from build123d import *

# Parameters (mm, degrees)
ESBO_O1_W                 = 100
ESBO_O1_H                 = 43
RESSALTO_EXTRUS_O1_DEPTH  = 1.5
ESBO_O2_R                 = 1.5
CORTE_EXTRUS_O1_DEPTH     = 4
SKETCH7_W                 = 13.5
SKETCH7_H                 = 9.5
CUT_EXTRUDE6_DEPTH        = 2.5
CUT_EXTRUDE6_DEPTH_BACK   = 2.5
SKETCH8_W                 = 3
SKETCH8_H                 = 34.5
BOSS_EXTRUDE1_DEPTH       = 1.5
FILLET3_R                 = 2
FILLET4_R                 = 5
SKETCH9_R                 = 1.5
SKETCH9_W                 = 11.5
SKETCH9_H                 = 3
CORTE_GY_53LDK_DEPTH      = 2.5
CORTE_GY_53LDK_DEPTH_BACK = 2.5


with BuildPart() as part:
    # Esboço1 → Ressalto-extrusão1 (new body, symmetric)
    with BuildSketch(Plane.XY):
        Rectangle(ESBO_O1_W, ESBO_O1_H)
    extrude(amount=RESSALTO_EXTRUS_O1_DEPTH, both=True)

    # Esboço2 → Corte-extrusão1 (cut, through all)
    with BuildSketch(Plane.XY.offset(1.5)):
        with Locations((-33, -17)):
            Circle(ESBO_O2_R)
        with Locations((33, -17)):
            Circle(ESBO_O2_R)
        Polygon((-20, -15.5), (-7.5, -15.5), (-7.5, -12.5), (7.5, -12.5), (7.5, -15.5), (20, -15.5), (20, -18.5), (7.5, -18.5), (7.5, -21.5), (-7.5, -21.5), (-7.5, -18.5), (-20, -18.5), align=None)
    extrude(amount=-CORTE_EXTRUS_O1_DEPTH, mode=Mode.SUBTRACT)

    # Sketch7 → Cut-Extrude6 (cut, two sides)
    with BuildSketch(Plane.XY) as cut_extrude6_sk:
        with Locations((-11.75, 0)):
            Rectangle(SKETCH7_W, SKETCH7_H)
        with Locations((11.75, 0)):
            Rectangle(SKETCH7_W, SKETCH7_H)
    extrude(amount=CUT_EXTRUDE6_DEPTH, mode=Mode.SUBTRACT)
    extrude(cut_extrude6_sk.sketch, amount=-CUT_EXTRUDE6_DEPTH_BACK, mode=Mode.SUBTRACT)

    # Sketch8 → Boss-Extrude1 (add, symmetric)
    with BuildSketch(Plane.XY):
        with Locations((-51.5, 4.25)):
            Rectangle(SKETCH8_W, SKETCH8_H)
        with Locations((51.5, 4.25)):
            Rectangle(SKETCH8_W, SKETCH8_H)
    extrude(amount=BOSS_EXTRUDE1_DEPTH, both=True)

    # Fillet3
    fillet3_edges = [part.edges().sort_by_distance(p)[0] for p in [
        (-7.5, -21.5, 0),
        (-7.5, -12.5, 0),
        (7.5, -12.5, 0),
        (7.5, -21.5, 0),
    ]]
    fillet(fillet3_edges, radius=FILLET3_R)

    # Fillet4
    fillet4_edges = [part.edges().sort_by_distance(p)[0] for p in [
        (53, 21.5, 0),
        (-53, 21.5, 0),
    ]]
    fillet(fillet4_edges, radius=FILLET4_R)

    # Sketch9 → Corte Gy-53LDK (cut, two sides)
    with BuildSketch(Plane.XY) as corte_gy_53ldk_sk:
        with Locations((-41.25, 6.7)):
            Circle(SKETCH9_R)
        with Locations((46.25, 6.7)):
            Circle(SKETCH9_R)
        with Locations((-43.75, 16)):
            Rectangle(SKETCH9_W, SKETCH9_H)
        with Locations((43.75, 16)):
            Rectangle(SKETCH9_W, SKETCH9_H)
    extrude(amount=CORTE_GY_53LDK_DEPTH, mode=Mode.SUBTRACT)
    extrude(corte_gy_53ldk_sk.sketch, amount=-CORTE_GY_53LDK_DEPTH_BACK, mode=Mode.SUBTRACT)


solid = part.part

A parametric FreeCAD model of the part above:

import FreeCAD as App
import Part
import Sketcher

V = App.Vector
Q = App.Units.Quantity


def edges_at(feature, points):
    """Names of the edges that pass closest to the given points."""
    edges = feature.Shape.Edges
    near = lambda p: min(range(len(edges)), key=lambda i: edges[i].distToShape(Part.Vertex(*p))[0])
    return sorted({f"Edge{near(p) + 1}" for p in points})

doc = App.newDocument("Part")
params = doc.addObject("Spreadsheet::Sheet", "Params")
for row, (alias, value) in enumerate([
    ("sketch1_width", "100 mm"),
    ("sketch1_height", "43 mm"),
    ("pad1_length", "3 mm"),
    ("sketch2_diameter", "3 mm"),
    ("sketch2_width", "15 mm"),
    ("sketch2_height", "3 mm"),
    ("sketch2_width2", "12.5 mm"),
    ("sketch3_width", "13.5 mm"),
    ("sketch3_height", "9.5 mm"),
    ("sketch4_width", "3 mm"),
    ("sketch4_height", "34.5 mm"),
    ("pad2_length", "3 mm"),
    ("fillet_radius", "2 mm"),
    ("fillet2_radius", "5 mm"),
    ("sketch5_diameter", "3 mm"),
    ("sketch5_height", "3 mm"),
    ("sketch5_width", "11.5 mm"),
], start=1):
    params.set(f"A{row}", alias)
    params.set(f"B{row}", "=" + value)
    params.setAlias(f"B{row}", alias)

body = doc.addObject("PartDesign::Body", "Body")

# Sketch on XY plane
sketch1 = body.newObject("Sketcher::SketchObject", "Sketch")
sketch1.AttachmentSupport = (doc.getObject("XY_Plane"), [""])
sketch1.MapMode = "FlatFace"
sketch1.addGeometry(Part.LineSegment(V(-50, 22, 0), V(-50, -22, 0)), False)
sketch1.addGeometry(Part.LineSegment(V(-50, -22, 0), V(50, -22, 0)), False)
sketch1.addGeometry(Part.LineSegment(V(50, -22, 0), V(50, 22, 0)), False)
sketch1.addGeometry(Part.LineSegment(V(50, 22, 0), V(-50, 22, 0)), False)
sketch1.addConstraint(Sketcher.Constraint("Coincident", 0, 2, 1, 1))
sketch1.addConstraint(Sketcher.Constraint("Coincident", 1, 2, 2, 1))
sketch1.addConstraint(Sketcher.Constraint("Coincident", 2, 2, 3, 1))
sketch1.addConstraint(Sketcher.Constraint("Coincident", 3, 2, 0, 1))
sketch1.addConstraint(Sketcher.Constraint("Vertical", 0))
sketch1.addConstraint(Sketcher.Constraint("Horizontal", 1))
sketch1.addConstraint(Sketcher.Constraint("Vertical", 2))
sketch1.addConstraint(Sketcher.Constraint("Horizontal", 3))
sketch1.addConstraint(Sketcher.Constraint("Symmetric", 0, 2, 2, 2, -1, 1))
sketch1.addConstraint(Sketcher.Constraint("DistanceX", 1, 1, 1, 2, Q("100 mm")))
sketch1.addConstraint(Sketcher.Constraint("DistanceY", 0, 2, 0, 1, Q("43 mm")))
sketch1.setExpression("Constraints[9]", "Params.sketch1_width")
sketch1.setExpression("Constraints[10]", "Params.sketch1_height")
pad1 = body.newObject("PartDesign::Pad", "Pad")
pad1.Profile = sketch1
pad1.setExpression("Length", "Params.pad1_length")
pad1.Midplane = True

# Sketch on XY plane
sketch2 = body.newObject("Sketcher::SketchObject", "Sketch001")
sketch2.AttachmentSupport = (doc.getObject("XY_Plane"), [""])
sketch2.MapMode = "FlatFace"
sketch2.AttachmentOffset = App.Placement(V(0, 0, 1.5), App.Rotation())
sketch2.addGeometry(Part.Circle(V(-33, -17, 0), V(0, 0, 1), 1.5), False)
sketch2.addGeometry(Part.Circle(V(33, -17, 0), V(0, 0, 1), 1.5), False)
sketch2.addGeometry(Part.LineSegment(V(-7.5, -15.5, 0), V(-20, -15.5, 0)), False)
sketch2.addGeometry(Part.LineSegment(V(-20, -15.5, 0), V(-20, -18.5, 0)), False)
sketch2.addGeometry(Part.LineSegment(V(-20, -18.5, 0), V(-7.5, -18.5, 0)), False)
sketch2.addGeometry(Part.LineSegment(V(-7.5, -18.5, 0), V(-7.5, -21.5, 0)), False)
sketch2.addGeometry(Part.LineSegment(V(-7.5, -21.5, 0), V(7.5, -21.5, 0)), False)
sketch2.addGeometry(Part.LineSegment(V(7.5, -21.5, 0), V(7.5, -18.5, 0)), False)
sketch2.addGeometry(Part.LineSegment(V(7.5, -18.5, 0), V(20, -18.5, 0)), False)
sketch2.addGeometry(Part.LineSegment(V(20, -18.5, 0), V(20, -15.5, 0)), False)
sketch2.addGeometry(Part.LineSegment(V(20, -15.5, 0), V(7.5, -15.5, 0)), False)
sketch2.addGeometry(Part.LineSegment(V(7.5, -15.5, 0), V(7.5, -12.5, 0)), False)
sketch2.addGeometry(Part.LineSegment(V(7.5, -12.5, 0), V(-7.5, -12.5, 0)), False)
sketch2.addGeometry(Part.LineSegment(V(-7.5, -12.5, 0), V(-7.5, -15.5, 0)), False)
sketch2.addConstraint(Sketcher.Constraint("Coincident", 2, 2, 3, 1))
sketch2.addConstraint(Sketcher.Constraint("Coincident", 3, 2, 4, 1))
sketch2.addConstraint(Sketcher.Constraint("Coincident", 4, 2, 5, 1))
sketch2.addConstraint(Sketcher.Constraint("Coincident", 5, 2, 6, 1))
sketch2.addConstraint(Sketcher.Constraint("Coincident", 6, 2, 7, 1))
sketch2.addConstraint(Sketcher.Constraint("Coincident", 7, 2, 8, 1))
sketch2.addConstraint(Sketcher.Constraint("Coincident", 8, 2, 9, 1))
sketch2.addConstraint(Sketcher.Constraint("Coincident", 9, 2, 10, 1))
sketch2.addConstraint(Sketcher.Constraint("Coincident", 10, 2, 11, 1))
sketch2.addConstraint(Sketcher.Constraint("Coincident", 11, 2, 12, 1))
sketch2.addConstraint(Sketcher.Constraint("Coincident", 12, 2, 13, 1))
sketch2.addConstraint(Sketcher.Constraint("Coincident", 13, 2, 2, 1))
sketch2.addConstraint(Sketcher.Constraint("Horizontal", 2))
sketch2.addConstraint(Sketcher.Constraint("Vertical", 3))
sketch2.addConstraint(Sketcher.Constraint("Horizontal", 4))
sketch2.addConstraint(Sketcher.Constraint("Vertical", 5))
sketch2.addConstraint(Sketcher.Constraint("Horizontal", 6))
sketch2.addConstraint(Sketcher.Constraint("Vertical", 7))
sketch2.addConstraint(Sketcher.Constraint("Horizontal", 8))
sketch2.addConstraint(Sketcher.Constraint("Vertical", 9))
sketch2.addConstraint(Sketcher.Constraint("Horizontal", 10))
sketch2.addConstraint(Sketcher.Constraint("Vertical", 11))
sketch2.addConstraint(Sketcher.Constraint("Horizontal", 12))
sketch2.addConstraint(Sketcher.Constraint("Vertical", 13))
sketch2.addConstraint(Sketcher.Constraint("Equal", 0, 1))
sketch2.addConstraint(Sketcher.Constraint("Symmetric", 0, 3, 1, 3, -2))
sketch2.addConstraint(Sketcher.Constraint("Symmetric", 4, 2, 7, 2, -2))
sketch2.addConstraint(Sketcher.Constraint("Symmetric", 2, 2, 9, 2, -2))
sketch2.addConstraint(Sketcher.Constraint("Vertical", 7, 2, 10, 2))
sketch2.addConstraint(Sketcher.Constraint("Vertical", 5, 2, 12, 2))
sketch2.addConstraint(Sketcher.Constraint("Equal", 3, 5))
sketch2.addConstraint(Sketcher.Constraint("Equal", 9, 11))
sketch2.addConstraint(Sketcher.Constraint("Diameter", 0, Q("3 mm")))
sketch2.addConstraint(Sketcher.Constraint("DistanceX", 6, 1, 6, 2, Q("15 mm")))
sketch2.addConstraint(Sketcher.Constraint("DistanceY", 3, 2, 3, 1, Q("3 mm")))
sketch2.addConstraint(Sketcher.Constraint("DistanceX", 2, 2, 2, 1, Q("12.5 mm")))
sketch2.addConstraint(Sketcher.Constraint("DistanceX", 0, 3, -1, 1, Q("33 mm")))
sketch2.addConstraint(Sketcher.Constraint("DistanceY", 0, 3, -1, 1, Q("17 mm")))
sketch2.addConstraint(Sketcher.Constraint("DistanceY", 2, 2, -1, 1, Q("15.5 mm")))
sketch2.setExpression("Constraints[32]", "Params.sketch2_diameter")
sketch2.setExpression("Constraints[33]", "Params.sketch2_width")
sketch2.setExpression("Constraints[34]", "Params.sketch2_height")
sketch2.setExpression("Constraints[35]", "Params.sketch2_width2")
pocket1 = body.newObject("PartDesign::Pocket", "Pocket")
pocket1.Profile = sketch2
pocket1.Type = "ThroughAll"

# Sketch on XY plane
sketch3 = body.newObject("Sketcher::SketchObject", "Sketch002")
sketch3.AttachmentSupport = (doc.getObject("XY_Plane"), [""])
sketch3.MapMode = "FlatFace"
sketch3.addGeometry(Part.LineSegment(V(-18, 5, 0), V(-18, -5, 0)), False)
sketch3.addGeometry(Part.LineSegment(V(-18, -5, 0), V(-5, -5, 0)), False)
sketch3.addGeometry(Part.LineSegment(V(-5, -5, 0), V(-5, 5, 0)), False)
sketch3.addGeometry(Part.LineSegment(V(-5, 5, 0), V(-18, 5, 0)), False)
sketch3.addGeometry(Part.LineSegment(V(5, 5, 0), V(5, -5, 0)), False)
sketch3.addGeometry(Part.LineSegment(V(5, -5, 0), V(18, -5, 0)), False)
sketch3.addGeometry(Part.LineSegment(V(18, -5, 0), V(18, 5, 0)), False)
sketch3.addGeometry(Part.LineSegment(V(18, 5, 0), V(5, 5, 0)), False)
sketch3.addConstraint(Sketcher.Constraint("Coincident", 0, 2, 1, 1))
sketch3.addConstraint(Sketcher.Constraint("Coincident", 1, 2, 2, 1))
sketch3.addConstraint(Sketcher.Constraint("Coincident", 2, 2, 3, 1))
sketch3.addConstraint(Sketcher.Constraint("Coincident", 3, 2, 0, 1))
sketch3.addConstraint(Sketcher.Constraint("Coincident", 4, 2, 5, 1))
sketch3.addConstraint(Sketcher.Constraint("Coincident", 5, 2, 6, 1))
sketch3.addConstraint(Sketcher.Constraint("Coincident", 6, 2, 7, 1))
sketch3.addConstraint(Sketcher.Constraint("Coincident", 7, 2, 4, 1))
sketch3.addConstraint(Sketcher.Constraint("Vertical", 0))
sketch3.addConstraint(Sketcher.Constraint("Horizontal", 1))
sketch3.addConstraint(Sketcher.Constraint("Vertical", 2))
sketch3.addConstraint(Sketcher.Constraint("Horizontal", 3))
sketch3.addConstraint(Sketcher.Constraint("Vertical", 4))
sketch3.addConstraint(Sketcher.Constraint("Horizontal", 5))
sketch3.addConstraint(Sketcher.Constraint("Vertical", 6))
sketch3.addConstraint(Sketcher.Constraint("Horizontal", 7))
sketch3.addConstraint(Sketcher.Constraint("Symmetric", 2, 2, 4, 2, -1, 1))
sketch3.addConstraint(Sketcher.Constraint("Symmetric", 0, 2, 6, 2, -1, 1))
sketch3.addConstraint(Sketcher.Constraint("Horizontal", 1, 2, 4, 2))
sketch3.addConstraint(Sketcher.Constraint("DistanceX", 1, 1, 1, 2, Q("13.5 mm")))
sketch3.addConstraint(Sketcher.Constraint("DistanceY", 0, 2, 0, 1, Q("9.5 mm")))
sketch3.addConstraint(Sketcher.Constraint("DistanceX", 1, 2, -1, 1, Q("5 mm")))
sketch3.setExpression("Constraints[19]", "Params.sketch3_width")
sketch3.setExpression("Constraints[20]", "Params.sketch3_height")
pocket2 = body.newObject("PartDesign::Pocket", "Pocket001")
pocket2.Profile = sketch3
pocket2.Type = "ThroughAll"
pocket2.Midplane = True

# Sketch on XY plane
sketch4 = body.newObject("Sketcher::SketchObject", "Sketch003")
sketch4.AttachmentSupport = (doc.getObject("XY_Plane"), [""])
sketch4.MapMode = "FlatFace"
sketch4.addGeometry(Part.LineSegment(V(-53, 21.5, 0), V(-53, -13, 0)), False)
sketch4.addGeometry(Part.LineSegment(V(-53, -13, 0), V(-50, -13, 0)), False)
sketch4.addGeometry(Part.LineSegment(V(-50, -13, 0), V(-50, 21.5, 0)), False)
sketch4.addGeometry(Part.LineSegment(V(-50, 21.5, 0), V(-53, 21.5, 0)), False)
sketch4.addGeometry(Part.LineSegment(V(50, 21.5, 0), V(50, -13, 0)), False)
sketch4.addGeometry(Part.LineSegment(V(50, -13, 0), V(53, -13, 0)), False)
sketch4.addGeometry(Part.LineSegment(V(53, -13, 0), V(53, 21.5, 0)), False)
sketch4.addGeometry(Part.LineSegment(V(53, 21.5, 0), V(50, 21.5, 0)), False)
sketch4.addConstraint(Sketcher.Constraint("Coincident", 0, 2, 1, 1))
sketch4.addConstraint(Sketcher.Constraint("Coincident", 1, 2, 2, 1))
sketch4.addConstraint(Sketcher.Constraint("Coincident", 2, 2, 3, 1))
sketch4.addConstraint(Sketcher.Constraint("Coincident", 3, 2, 0, 1))
sketch4.addConstraint(Sketcher.Constraint("Coincident", 4, 2, 5, 1))
sketch4.addConstraint(Sketcher.Constraint("Coincident", 5, 2, 6, 1))
sketch4.addConstraint(Sketcher.Constraint("Coincident", 6, 2, 7, 1))
sketch4.addConstraint(Sketcher.Constraint("Coincident", 7, 2, 4, 1))
sketch4.addConstraint(Sketcher.Constraint("Vertical", 0))
sketch4.addConstraint(Sketcher.Constraint("Horizontal", 1))
sketch4.addConstraint(Sketcher.Constraint("Vertical", 2))
sketch4.addConstraint(Sketcher.Constraint("Horizontal", 3))
sketch4.addConstraint(Sketcher.Constraint("Vertical", 4))
sketch4.addConstraint(Sketcher.Constraint("Horizontal", 5))
sketch4.addConstraint(Sketcher.Constraint("Vertical", 6))
sketch4.addConstraint(Sketcher.Constraint("Horizontal", 7))
sketch4.addConstraint(Sketcher.Constraint("Symmetric", 1, 2, 4, 2, -2))
sketch4.addConstraint(Sketcher.Constraint("Symmetric", 3, 2, 6, 2, -2))
sketch4.addConstraint(Sketcher.Constraint("DistanceX", 1, 1, 1, 2, Q("3 mm")))
sketch4.addConstraint(Sketcher.Constraint("DistanceY", 0, 2, 0, 1, Q("34.5 mm")))
sketch4.addConstraint(Sketcher.Constraint("DistanceX", 0, 2, -1, 1, Q("53 mm")))
sketch4.addConstraint(Sketcher.Constraint("DistanceY", 0, 2, -1, 1, Q("13 mm")))
sketch4.setExpression("Constraints[18]", "Params.sketch4_width")
sketch4.setExpression("Constraints[19]", "Params.sketch4_height")
pad2 = body.newObject("PartDesign::Pad", "Pad001")
pad2.Profile = sketch4
pad2.setExpression("Length", "Params.pad2_length")
pad2.Midplane = True
doc.recompute()

fillet = body.newObject("PartDesign::Fillet", "Fillet")
fillet.Base = (pad2, edges_at(pad2, [
    (-7.5, -21.5, 0),
    (-7.5, -12.5, 0),
    (7.5, -12.5, 0),
    (7.5, -21.5, 0),
]))
fillet.setExpression("Radius", "Params.fillet_radius")
doc.recompute()

fillet2 = body.newObject("PartDesign::Fillet", "Fillet001")
fillet2.Base = (fillet, edges_at(fillet, [(53, 21.5, 0), (-53, 21.5, 0)]))
fillet2.setExpression("Radius", "Params.fillet2_radius")

# Sketch on XY plane
sketch5 = body.newObject("Sketcher::SketchObject", "Sketch004")
sketch5.AttachmentSupport = (doc.getObject("XY_Plane"), [""])
sketch5.MapMode = "FlatFace"
sketch5.addGeometry(Part.Circle(V(-41.2, 6.7, 0), V(0, 0, 1), 1.5), False)
sketch5.addGeometry(Part.Circle(V(46.2, 6.7, 0), V(0, 0, 1), 1.5), False)
sketch5.addGeometry(Part.LineSegment(V(-49.5, 17.5, 0), V(-49.5, 14.5, 0)), False)
sketch5.addGeometry(Part.LineSegment(V(-49.5, 14.5, 0), V(-38, 14.5, 0)), False)
sketch5.addGeometry(Part.LineSegment(V(-38, 14.5, 0), V(-38, 17.5, 0)), False)
sketch5.addGeometry(Part.LineSegment(V(-38, 17.5, 0), V(-49.5, 17.5, 0)), False)
sketch5.addGeometry(Part.LineSegment(V(38, 17.5, 0), V(38, 14.5, 0)), False)
sketch5.addGeometry(Part.LineSegment(V(38, 14.5, 0), V(49.5, 14.5, 0)), False)
sketch5.addGeometry(Part.LineSegment(V(49.5, 14.5, 0), V(49.5, 17.5, 0)), False)
sketch5.addGeometry(Part.LineSegment(V(49.5, 17.5, 0), V(38, 17.5, 0)), False)
sketch5.addConstraint(Sketcher.Constraint("Coincident", 2, 2, 3, 1))
sketch5.addConstraint(Sketcher.Constraint("Coincident", 3, 2, 4, 1))
sketch5.addConstraint(Sketcher.Constraint("Coincident", 4, 2, 5, 1))
sketch5.addConstraint(Sketcher.Constraint("Coincident", 5, 2, 2, 1))
sketch5.addConstraint(Sketcher.Constraint("Coincident", 6, 2, 7, 1))
sketch5.addConstraint(Sketcher.Constraint("Coincident", 7, 2, 8, 1))
sketch5.addConstraint(Sketcher.Constraint("Coincident", 8, 2, 9, 1))
sketch5.addConstraint(Sketcher.Constraint("Coincident", 9, 2, 6, 1))
sketch5.addConstraint(Sketcher.Constraint("Vertical", 2))
sketch5.addConstraint(Sketcher.Constraint("Horizontal", 3))
sketch5.addConstraint(Sketcher.Constraint("Vertical", 4))
sketch5.addConstraint(Sketcher.Constraint("Horizontal", 5))
sketch5.addConstraint(Sketcher.Constraint("Vertical", 6))
sketch5.addConstraint(Sketcher.Constraint("Horizontal", 7))
sketch5.addConstraint(Sketcher.Constraint("Vertical", 8))
sketch5.addConstraint(Sketcher.Constraint("Horizontal", 9))
sketch5.addConstraint(Sketcher.Constraint("Equal", 0, 1))
sketch5.addConstraint(Sketcher.Constraint("Symmetric", 3, 2, 6, 2, -2))
sketch5.addConstraint(Sketcher.Constraint("Symmetric", 5, 2, 8, 2, -2))
sketch5.addConstraint(Sketcher.Constraint("Horizontal", 0, 3, 1, 3))
sketch5.addConstraint(Sketcher.Constraint("Diameter", 0, Q("3 mm")))
sketch5.addConstraint(Sketcher.Constraint("DistanceY", 2, 2, 2, 1, Q("3 mm")))
sketch5.addConstraint(Sketcher.Constraint("DistanceX", 3, 1, 3, 2, Q("11.5 mm")))
sketch5.addConstraint(Sketcher.Constraint("DistanceX", 3, 2, -1, 1, Q("38 mm")))
sketch5.addConstraint(Sketcher.Constraint("DistanceY", -1, 1, 0, 3, Q("6.7 mm")))
sketch5.addConstraint(Sketcher.Constraint("DistanceY", -1, 1, 2, 2, Q("14.5 mm")))
sketch5.addConstraint(Sketcher.Constraint("DistanceX", 0, 3, 1, 3, Q("87.5 mm")))
sketch5.addConstraint(Sketcher.Constraint("DistanceX", 0, 3, -1, 1, Q("41.25 mm")))
sketch5.setExpression("Constraints[20]", "Params.sketch5_diameter")
sketch5.setExpression("Constraints[21]", "Params.sketch5_height")
sketch5.setExpression("Constraints[22]", "Params.sketch5_width")
pocket3 = body.newObject("PartDesign::Pocket", "Pocket002")
pocket3.Profile = sketch5
pocket3.Type = "ThroughAll"
pocket3.Midplane = True

doc.recompute()
